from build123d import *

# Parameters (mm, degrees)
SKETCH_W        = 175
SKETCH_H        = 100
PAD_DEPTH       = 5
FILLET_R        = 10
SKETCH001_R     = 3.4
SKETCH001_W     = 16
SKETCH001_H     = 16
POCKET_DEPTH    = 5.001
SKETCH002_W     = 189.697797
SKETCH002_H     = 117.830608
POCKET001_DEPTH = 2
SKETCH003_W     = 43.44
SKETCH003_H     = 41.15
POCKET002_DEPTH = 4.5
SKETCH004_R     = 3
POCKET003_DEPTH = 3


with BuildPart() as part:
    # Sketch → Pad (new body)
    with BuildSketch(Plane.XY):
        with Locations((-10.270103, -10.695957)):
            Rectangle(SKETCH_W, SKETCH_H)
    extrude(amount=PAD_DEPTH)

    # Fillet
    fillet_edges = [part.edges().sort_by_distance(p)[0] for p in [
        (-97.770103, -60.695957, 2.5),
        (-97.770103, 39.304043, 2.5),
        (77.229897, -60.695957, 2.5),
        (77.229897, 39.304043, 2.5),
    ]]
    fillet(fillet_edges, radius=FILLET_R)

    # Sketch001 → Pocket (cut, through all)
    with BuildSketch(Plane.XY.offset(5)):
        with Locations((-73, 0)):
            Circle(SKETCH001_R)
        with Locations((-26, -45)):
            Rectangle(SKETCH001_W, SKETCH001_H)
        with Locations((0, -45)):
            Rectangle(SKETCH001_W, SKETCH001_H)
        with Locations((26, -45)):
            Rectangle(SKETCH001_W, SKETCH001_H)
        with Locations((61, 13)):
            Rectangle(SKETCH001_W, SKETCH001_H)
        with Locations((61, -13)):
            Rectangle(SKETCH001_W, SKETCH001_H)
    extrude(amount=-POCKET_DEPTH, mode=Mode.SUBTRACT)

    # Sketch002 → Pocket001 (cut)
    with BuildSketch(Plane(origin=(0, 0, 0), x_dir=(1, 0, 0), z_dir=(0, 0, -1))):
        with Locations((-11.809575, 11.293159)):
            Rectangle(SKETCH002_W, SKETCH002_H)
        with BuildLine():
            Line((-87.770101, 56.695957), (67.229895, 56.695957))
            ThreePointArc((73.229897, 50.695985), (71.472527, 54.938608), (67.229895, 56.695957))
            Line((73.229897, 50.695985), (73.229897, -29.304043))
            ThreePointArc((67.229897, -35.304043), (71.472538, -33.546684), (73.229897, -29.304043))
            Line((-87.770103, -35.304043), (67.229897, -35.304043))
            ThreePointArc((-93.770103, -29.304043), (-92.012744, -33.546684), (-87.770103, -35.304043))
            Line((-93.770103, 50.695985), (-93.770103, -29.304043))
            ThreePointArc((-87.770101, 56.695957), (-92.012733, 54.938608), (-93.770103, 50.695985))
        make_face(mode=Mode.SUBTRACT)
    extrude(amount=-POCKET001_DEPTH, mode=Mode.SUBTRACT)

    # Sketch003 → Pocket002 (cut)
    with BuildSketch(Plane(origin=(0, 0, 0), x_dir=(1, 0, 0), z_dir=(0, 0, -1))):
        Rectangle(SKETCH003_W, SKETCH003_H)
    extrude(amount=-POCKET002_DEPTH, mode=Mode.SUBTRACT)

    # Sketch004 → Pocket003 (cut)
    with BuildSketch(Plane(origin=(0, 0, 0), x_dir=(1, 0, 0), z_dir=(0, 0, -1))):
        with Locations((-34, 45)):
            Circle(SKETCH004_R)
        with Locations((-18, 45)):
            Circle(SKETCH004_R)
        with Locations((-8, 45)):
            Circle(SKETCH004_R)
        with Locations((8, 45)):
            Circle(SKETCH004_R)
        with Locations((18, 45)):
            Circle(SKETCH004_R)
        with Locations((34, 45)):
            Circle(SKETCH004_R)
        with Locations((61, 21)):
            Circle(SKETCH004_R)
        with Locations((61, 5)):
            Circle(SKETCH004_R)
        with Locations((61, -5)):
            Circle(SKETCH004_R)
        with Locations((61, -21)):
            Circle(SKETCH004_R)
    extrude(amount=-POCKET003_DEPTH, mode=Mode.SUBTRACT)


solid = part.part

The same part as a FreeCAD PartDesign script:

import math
import FreeCAD as App
import Part
import Sketcher

V = App.Vector


def edges_at(feature, points):
    """Names of the edges that pass closest to the given points."""
    edges = feature.Shape.Edges
    near = lambda p: min(range(len(edges)), key=lambda i: edges[i].distToShape(Part.Vertex(*p))[0])
    return sorted({f"Edge{near(p) + 1}" for p in points})


def add_polygon(sketch, points):
    """Adds a closed chain of lines whose ends are joined by coincident constraints."""
    first, n = sketch.GeometryCount, len(points)
    for a, b in zip(points, points[1:] + points[:1]):
        sketch.addGeometry(Part.LineSegment(App.Vector(*a, 0), App.Vector(*b, 0)), False)
    for i in range(n):
        sketch.addConstraint(Sketcher.Constraint("Coincident", first + i, 2, first + (i + 1) % n, 1))

doc = App.newDocument("Part")
params = doc.addObject("Spreadsheet::Sheet", "Params")
for row, (alias, value) in enumerate([
    ("sketch1_width", "175 mm"),
    ("sketch1_height", "100 mm"),
    ("pad1_length", "5 mm"),
    ("fillet_radius", "10 mm"),
    ("sketch2_diameter", "6.8 mm"),
    ("sketch2_width", "16 mm"),
    ("sketch3_radius", "6.000001 mm"),
    ("sketch3_width", "155 mm"),
    ("pocket2_length", "2 mm"),
    ("sketch4_width", "43.44 mm"),
    ("sketch4_height", "41.15 mm"),
    ("pocket3_length", "4.5 mm"),
    ("sketch5_diameter", "6 mm"),
    ("pocket4_length", "3 mm"),
], start=1):
    params.set(f"A{row}", alias)
    params.set(f"B{row}", "=" + value)
    params.setAlias(f"B{row}", alias)

body = doc.addObject("PartDesign::Body", "Body")

sketch1 = doc.addObject("Sketcher::SketchObject", "Sketch")
body.addObject(sketch1)
sketch1.AttachmentSupport = (doc.XY_Plane, [""])
sketch1.MapMode = "FlatFace"
add_polygon(sketch1, [(-98, 39), (-98, -61), (77, -61), (77, 39)])
sketch1.addConstraint([
    Sketcher.Constraint("Vertical", 0),
    Sketcher.Constraint("Horizontal", 1),
    Sketcher.Constraint("Vertical", 2),
    Sketcher.Constraint("Horizontal", 3),
    Sketcher.Constraint("DistanceX", 1, 1, 1, 2, 175.0),
    Sketcher.Constraint("DistanceY", 0, 2, 0, 1, 100.0),
    Sketcher.Constraint("DistanceX", 0, 2, -1, 1, 97.770103),
    Sketcher.Constraint("DistanceY", 0, 2, -1, 1, 60.695957),
])
sketch1.setExpression("Constraints[8]", "Params.sketch1_width")
sketch1.setExpression("Constraints[9]", "Params.sketch1_height")
pad1 = doc.addObject("PartDesign::Pad", "Pad")
body.addObject(pad1)
pad1.Profile = sketch1
pad1.setExpression("Length", "Params.pad1_length")
doc.recompute()

fillet = doc.addObject("PartDesign::Fillet", "Fillet")
body.addObject(fillet)
fillet.Base = (pad1, edges_at(pad1, [
    (-97.77, -60.696, 2.5),
    (-97.77, 39.304, 2.5),
    (77.23, -60.696, 2.5),
    (77.23, 39.304, 2.5),
]))
fillet.setExpression("Radius", "Params.fillet_radius")

sketch2 = doc.addObject("Sketcher::SketchObject", "Sketch001")
body.addObject(sketch2)
sketch2.AttachmentSupport = (doc.XY_Plane, [""])
sketch2.MapMode = "FlatFace"
sketch2.AttachmentOffset = App.Placement(V(0, 0, 5), App.Rotation())
sketch2.addGeometry(Part.Circle(V(-73, 0, 0), V(0, 0, 1), 3.4), False)
add_polygon(sketch2, [(-34, -37), (-34, -53), (-18, -53), (-18, -37)])
add_polygon(sketch2, [(-8, -37), (-8, -53), (8, -53), (8, -37)])
add_polygon(sketch2, [(18, -37), (18, -53), (34, -53), (34, -37)])
add_polygon(sketch2, [(53, 21), (53, 5), (69, 5), (69, 21)])
add_polygon(sketch2, [(53, -5), (53, -21), (69, -21), (69, -5)])
sketch2.addConstraint([
    Sketcher.Constraint("Vertical", 1),
    Sketcher.Constraint("Horizontal", 2),
    Sketcher.Constraint("Vertical", 3),
    Sketcher.Constraint("Horizontal", 4),
    Sketcher.Constraint("Vertical", 5),
    Sketcher.Constraint("Horizontal", 6),
    Sketcher.Constraint("Vertical", 7),
    Sketcher.Constraint("Horizontal", 8),
    Sketcher.Constraint("Vertical", 9),
    Sketcher.Constraint("Horizontal", 10),
    Sketcher.Constraint("Vertical", 11),
    Sketcher.Constraint("Horizontal", 12),
    Sketcher.Constraint("Vertical", 13),
    Sketcher.Constraint("Horizontal", 14),
    Sketcher.Constraint("Vertical", 15),
    Sketcher.Constraint("Horizontal", 16),
    Sketcher.Constraint("Vertical", 17),
    Sketcher.Constraint("Horizontal", 18),
    Sketcher.Constraint("Vertical", 19),
    Sketcher.Constraint("Horizontal", 20),
    Sketcher.Constraint("Symmetric", 2, 2, 9, 2, -2),
    Sketcher.Constraint("Symmetric", 4, 2, 11, 2, -2),
    Sketcher.Constraint("Symmetric", 16, 2, 17, 2, -1),
    Sketcher.Constraint("Symmetric", 14, 2, 19, 2, -1),
    Sketcher.Constraint("PointOnObject", 0, 3, -1),
    Sketcher.Constraint("Horizontal", 2, 2, 5, 2),
    Sketcher.Constraint("Horizontal", 4, 2, 7, 2),
    Sketcher.Constraint("Equal", 4, 6),
    Sketcher.Constraint("Equal", 12, 14),
    Sketcher.Constraint("Equal", 20, 1),
    Sketcher.Constraint("Equal", 11, 13),
    Sketcher.Constraint("Diameter", 0, 6.8),
    Sketcher.Constraint("DistanceX", 2, 1, 2, 2, 16.0),
    Sketcher.Constraint("DistanceX", 0, 3, -1, 1, 73.0),
    Sketcher.Constraint("DistanceX", 1, 2, -1, 1, 34.0),
    Sketcher.Constraint("DistanceY", 1, 2, -1, 1, 53.0),
    Sketcher.Constraint("DistanceX", 5, 2, -1, 1, 8.0),
    Sketcher.Constraint("DistanceX", -1, 1, 13, 2, 53.0),
    Sketcher.Constraint("DistanceY", -1, 1, 13, 2, 5.0),
])
sketch2.setExpression("Constraints[51]", "Params.sketch2_diameter")
sketch2.setExpression("Constraints[52]", "Params.sketch2_width")
pocket1 = doc.addObject("PartDesign::Pocket", "Pocket")
body.addObject(pocket1)
pocket1.Profile = sketch2
pocket1.Type = "ThroughAll"

sketch3 = doc.addObject("Sketcher::SketchObject", "Sketch002")
body.addObject(sketch3)
sketch3.AttachmentSupport = (doc.XY_Plane, [""])
sketch3.MapMode = "FlatFace"
add_polygon(sketch3, [(-107, -70), (-107, 48), (83, 48), (83, -70)])
sketch3.addGeometry(Part.ArcOfCircle(Part.Circle(V(-88, -51, 0), V(0, 0, 1), 6), math.radians(-180), math.radians(-90)), False)
sketch3.addGeometry(Part.LineSegment(V(-88, -57, 0), V(67, -57, 0)), False)
sketch3.addGeometry(Part.ArcOfCircle(Part.Circle(V(67, -51, 0), V(0, 0, 1), 6), math.radians(-90), math.radians(0)), False)
sketch3.addGeometry(Part.LineSegment(V(73, -51, 0), V(73, 29, 0)), False)
sketch3.addGeometry(Part.ArcOfCircle(Part.Circle(V(67, 29, 0), V(0, 0, 1), 6), math.radians(0), math.radians(90)), False)
sketch3.addGeometry(Part.LineSegment(V(67, 35, 0), V(-88, 35, 0)), False)
sketch3.addGeometry(Part.ArcOfCircle(Part.Circle(V(-88, 29, 0), V(0, 0, 1), 6), math.radians(90), math.radians(180)), False)
sketch3.addGeometry(Part.LineSegment(V(-94, 29, 0), V(-94, -51, 0)), False)
sketch3.addConstraint([
    Sketcher.Constraint("Tangent", 4, 2, 5, 1),
    Sketcher.Constraint("Tangent", 5, 2, 6, 1),
    Sketcher.Constraint("Coincident", 6, 2, 7, 1),
    Sketcher.Constraint("Tangent", 7, 2, 8, 1),
    Sketcher.Constraint("Tangent", 8, 2, 9, 1),
    Sketcher.Constraint("Tangent", 9, 2, 10, 1),
    Sketcher.Constraint("Tangent", 10, 2, 11, 1),
    Sketcher.Constraint("Coincident", 11, 2, 4, 1),
    Sketcher.Constraint("Vertical", 0),
    Sketcher.Constraint("Horizontal", 1),
    Sketcher.Constraint("Vertical", 2),
    Sketcher.Constraint("Horizontal", 3),
    Sketcher.Constraint("Horizontal", 5),
    Sketcher.Constraint("Vertical", 7),
    Sketcher.Constraint("Horizontal", 9),
    Sketcher.Constraint("Vertical", 11),
    Sketcher.Constraint("Equal", 4, 6),
    Sketcher.Constraint("Equal", 6, 8),
    Sketcher.Constraint("Equal", 8, 10),
    Sketcher.Constraint("Horizontal", 6, 2, 11, 2),
    Sketcher.Constraint("Radius", 4, 6.000001),
    Sketcher.Constraint("DistanceX", 9, 2, 9, 1, 155.0),
    Sketcher.Constraint("DistanceY", 6, 3, 8, 3, 80.0),
    Sketcher.Constraint("DistanceY", 0, 1, 0, 2, 117.830608),
    Sketcher.Constraint("DistanceY", 7, 1, 7, 2, 80.000028),
    Sketcher.Constraint("DistanceX", -1, 1, 8, 3, 67.229898),
    Sketcher.Constraint("DistanceY", 10, 3, 0, 2, 18.318101),
    Sketcher.Constraint("DistanceX", 1, 1, 1, 2, 189.697797),
    Sketcher.Constraint("DistanceX", 0, 2, 10, 3, 18.888369),
    Sketcher.Constraint("DistanceY", 4, 3, -1, 1, 50.695956),
])
sketch3.setExpression("Constraints[24]", "Params.sketch3_radius")
sketch3.setExpression("Constraints[25]", "Params.sketch3_width")
pocket2 = doc.addObject("PartDesign::Pocket", "Pocket001")
body.addObject(pocket2)
pocket2.Profile = sketch3
pocket2.setExpression("Length", "Params.pocket2_length")
pocket2.Reversed = True

sketch4 = doc.addObject("Sketcher::SketchObject", "Sketch003")
body.addObject(sketch4)
sketch4.AttachmentSupport = (doc.XY_Plane, [""])
sketch4.MapMode = "FlatFace"
add_polygon(sketch4, [(-22, -21), (-22, 21), (22, 21), (22, -21)])
sketch4.addConstraint([
    Sketcher.Constraint("Vertical", 0),
    Sketcher.Constraint("Horizontal", 1),
    Sketcher.Constraint("Vertical", 2),
    Sketcher.Constraint("Horizontal", 3),
    Sketcher.Constraint("Symmetric", 0, 2, 2, 2, -1, 1),
    Sketcher.Constraint("DistanceX", 1, 1, 1, 2, 43.44),
    Sketcher.Constraint("DistanceY", 0, 1, 0, 2, 41.15),
])
sketch4.setExpression("Constraints[9]", "Params.sketch4_width")
sketch4.setExpression("Constraints[10]", "Params.sketch4_height")
pocket3 = doc.addObject("PartDesign::Pocket", "Pocket002")
body.addObject(pocket3)
pocket3.Profile = sketch4
pocket3.setExpression("Length", "Params.pocket3_length")
pocket3.Reversed = True

sketch5 = doc.addObject("Sketcher::SketchObject", "Sketch004")
body.addObject(sketch5)
sketch5.AttachmentSupport = (doc.XY_Plane, [""])
sketch5.MapMode = "FlatFace"
sketch5.addGeometry([
    Part.Circle(V(-34, -45, 0), V(0, 0, 1), 3),
    Part.Circle(V(-18, -45, 0), V(0, 0, 1), 3),
    Part.Circle(V(-8, -45, 0), V(0, 0, 1), 3),
    Part.Circle(V(8, -45, 0), V(0, 0, 1), 3),
    Part.Circle(V(18, -45, 0), V(0, 0, 1), 3),
    Part.Circle(V(34, -45, 0), V(0, 0, 1), 3),
    Part.Circle(V(61, -21, 0), V(0, 0, 1), 3),
    Part.Circle(V(61, -5, 0), V(0, 0, 1), 3),
    Part.Circle(V(61, 5, 0), V(0, 0, 1), 3),
    Part.Circle(V(61, 21, 0), V(0, 0, 1), 3),
], False)
sketch5.addConstraint([
    Sketcher.Constraint("Equal", 0, 1),
    Sketcher.Constraint("Equal", 1, 2),
    Sketcher.Constraint("Equal", 2, 3),
    Sketcher.Constraint("Equal", 3, 4),
    Sketcher.Constraint("Equal", 4, 5),
    Sketcher.Constraint("Equal", 5, 6),
    Sketcher.Constraint("Equal", 6, 7),
    Sketcher.Constraint("Equal", 7, 8),
    Sketcher.Constraint("Equal", 8, 9),
    Sketcher.Constraint("Symmetric", 2, 3, 3, 3, -2),
    Sketcher.Constraint("Symmetric", 1, 3, 4, 3, -2),
    Sketcher.Constraint("Symmetric", 0, 3, 5, 3, -2),
    Sketcher.Constraint("Symmetric", 7, 3, 8, 3, -1),
    Sketcher.Constraint("Symmetric", 6, 3, 9, 3, -1),
    Sketcher.Constraint("Horizontal", 0, 3, 1, 3),
    Sketcher.Constraint("Horizontal", 1, 3, 2, 3),
    Sketcher.Constraint("Vertical", 6, 3, 7, 3),
    Sketcher.Constraint("Diameter", 0, 6.0),
    Sketcher.Constraint("DistanceX", 0, 3, -1, 1, 34.0),
    Sketcher.Constraint("DistanceY", 0, 3, -1, 1, 45.0),
    Sketcher.Constraint("DistanceX", 1, 3, -1, 1, 18.0),
    Sketcher.Constraint("DistanceX", 2, 3, -1, 1, 8.0),
    Sketcher.Constraint("DistanceX", -1, 1, 6, 3, 61.0),
    Sketcher.Constraint("DistanceY", 6, 3, -1, 1, 21.0),
    Sketcher.Constraint("DistanceY", 7, 3, -1, 1, 5.0),
])
sketch5.setExpression("Constraints[17]", "Params.sketch5_diameter")
pocket4 = doc.addObject("PartDesign::Pocket", "Pocket003")
body.addObject(pocket4)
pocket4.Profile = sketch5
pocket4.setExpression("Length", "Params.pocket4_length")
pocket4.Reversed = True

doc.recompute()
